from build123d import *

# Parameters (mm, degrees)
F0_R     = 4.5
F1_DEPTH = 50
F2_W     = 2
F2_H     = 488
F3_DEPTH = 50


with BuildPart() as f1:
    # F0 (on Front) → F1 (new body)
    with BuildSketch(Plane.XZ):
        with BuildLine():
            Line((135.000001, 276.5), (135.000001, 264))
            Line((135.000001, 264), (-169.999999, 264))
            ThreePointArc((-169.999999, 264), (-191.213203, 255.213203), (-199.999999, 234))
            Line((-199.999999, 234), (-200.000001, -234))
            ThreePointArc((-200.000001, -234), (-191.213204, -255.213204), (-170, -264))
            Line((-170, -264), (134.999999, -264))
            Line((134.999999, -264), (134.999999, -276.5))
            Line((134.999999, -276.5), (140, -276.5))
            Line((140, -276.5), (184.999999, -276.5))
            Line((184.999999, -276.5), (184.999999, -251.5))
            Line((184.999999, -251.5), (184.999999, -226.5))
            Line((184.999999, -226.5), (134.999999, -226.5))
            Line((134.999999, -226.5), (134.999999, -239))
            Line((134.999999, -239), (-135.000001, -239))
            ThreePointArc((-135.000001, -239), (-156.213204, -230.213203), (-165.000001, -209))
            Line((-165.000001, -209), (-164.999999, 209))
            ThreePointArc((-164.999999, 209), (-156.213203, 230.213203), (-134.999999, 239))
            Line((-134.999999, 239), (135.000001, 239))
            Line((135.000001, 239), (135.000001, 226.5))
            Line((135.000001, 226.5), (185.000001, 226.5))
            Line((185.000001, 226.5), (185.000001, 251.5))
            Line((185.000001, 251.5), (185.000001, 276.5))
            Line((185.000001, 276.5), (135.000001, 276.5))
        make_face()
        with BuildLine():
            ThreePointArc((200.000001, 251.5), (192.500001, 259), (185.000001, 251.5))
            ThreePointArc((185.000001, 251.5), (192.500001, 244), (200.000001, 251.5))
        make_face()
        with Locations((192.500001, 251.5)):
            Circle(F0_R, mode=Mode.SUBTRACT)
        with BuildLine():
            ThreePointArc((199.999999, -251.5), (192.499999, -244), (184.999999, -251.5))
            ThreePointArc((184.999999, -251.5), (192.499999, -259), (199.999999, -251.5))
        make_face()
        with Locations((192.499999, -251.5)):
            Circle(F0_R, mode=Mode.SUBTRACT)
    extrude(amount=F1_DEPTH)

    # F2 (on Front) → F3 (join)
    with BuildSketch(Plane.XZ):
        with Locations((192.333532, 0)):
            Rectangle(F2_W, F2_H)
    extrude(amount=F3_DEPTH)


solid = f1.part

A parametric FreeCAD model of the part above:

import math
import FreeCAD as App
import Part
import Sketcher
from FreeCAD import Vector
Q = App.Units.Quantity

doc = App.newDocument("Part")
body = doc.addObject("PartDesign::Body", "Body")
body.AllowCompound = True

sketch1 = body.newObject("Sketcher::SketchObject", "Sketch")
sketch1.AttachmentSupport = (doc.getObject("XZ_Plane"), [""])
sketch1.MapMode = "FlatFace"
sketch1.addGeometry(Part.LineSegment(Vector(135.000001, 276.5, 0), Vector(135.000001, 264, 0)), False)
sketch1.addGeometry(Part.LineSegment(Vector(135.000001, 264, 0), Vector(-169.999999, 264, 0)), False)
sketch1.addGeometry(Part.ArcOfCircle(Part.Circle(Vector(-169.999999, 234, 0), Vector(0, 0, 1), 30), math.radians(90), math.radians(180)), False)
sketch1.addGeometry(Part.LineSegment(Vector(-199.999999, 234, 0), Vector(-200.000001, -234, 0)), False)
sketch1.addGeometry(Part.ArcOfCircle(Part.Circle(Vector(-170.000001, -234, 0), Vector(0, 0, 1), 30), math.radians(180), math.radians(270.000002)), False)
sketch1.addGeometry(Part.LineSegment(Vector(-170, -264, 0), Vector(134.999999, -264, 0)), False)
sketch1.addGeometry(Part.LineSegment(Vector(134.999999, -264, 0), Vector(134.999999, -276.5, 0)), False)
sketch1.addGeometry(Part.LineSegment(Vector(134.999999, -276.5, 0), Vector(184.999999, -276.5, 0)), False)
sketch1.addGeometry(Part.LineSegment(Vector(184.999999, -276.5, 0), Vector(184.999999, -251.5, 0)), False)
sketch1.addGeometry(Part.LineSegment(Vector(184.999999, -251.5, 0), Vector(184.999999, -226.5, 0)), False)
sketch1.addGeometry(Part.LineSegment(Vector(184.999999, -226.5, 0), Vector(134.999999, -226.5, 0)), False)
sketch1.addGeometry(Part.LineSegment(Vector(134.999999, -226.5, 0), Vector(134.999999, -239, 0)), False)
sketch1.addGeometry(Part.LineSegment(Vector(134.999999, -239, 0), Vector(-135.000001, -239, 0)), False)
sketch1.addGeometry(Part.ArcOfCircle(Part.Circle(Vector(-135, -208.999999, 0), Vector(0, 0, 1), 30.000001), math.radians(-179.999997), math.radians(-90.000003)), False)
sketch1.addGeometry(Part.LineSegment(Vector(-165.000001, -209, 0), Vector(-164.999999, 209, 0)), False)
sketch1.addGeometry(Part.ArcOfCircle(Part.Circle(Vector(-134.999999, 209, 0), Vector(0, 0, 1), 30), math.radians(90), math.radians(180)), False)
sketch1.addGeometry(Part.LineSegment(Vector(-134.999999, 239, 0), Vector(135.000001, 239, 0)), False)
sketch1.addGeometry(Part.LineSegment(Vector(135.000001, 239, 0), Vector(135.000001, 226.5, 0)), False)
sketch1.addGeometry(Part.LineSegment(Vector(135.000001, 226.5, 0), Vector(185.000001, 226.5, 0)), False)
sketch1.addGeometry(Part.LineSegment(Vector(185.000001, 226.5, 0), Vector(185.000001, 251.5, 0)), False)
sketch1.addGeometry(Part.LineSegment(Vector(185.000001, 251.5, 0), Vector(185.000001, 276.5, 0)), False)
sketch1.addGeometry(Part.LineSegment(Vector(185.000001, 276.5, 0), Vector(135.000001, 276.5, 0)), False)
sketch1.addGeometry(Part.Circle(Vector(192.500001, 251.5, 0), Vector(0, 0, 1), 7.5), False)
sketch1.addGeometry(Part.Circle(Vector(192.500001, 251.5, 0), Vector(0, 0, 1), 4.5), False)
sketch1.addGeometry(Part.Circle(Vector(192.499999, -251.5, 0), Vector(0, 0, 1), 7.5), False)
sketch1.addGeometry(Part.Circle(Vector(192.499999, -251.5, 0), Vector(0, 0, 1), 4.5), False)
sketch1.addConstraint(Sketcher.Constraint("Coincident", 0, 2, 1, 1))
sketch1.addConstraint(Sketcher.Constraint("Tangent", 1, 2, 2, 1))
sketch1.addConstraint(Sketcher.Constraint("Tangent", 2, 2, 3, 1))
sketch1.addConstraint(Sketcher.Constraint("Tangent", 3, 2, 4, 1))
sketch1.addConstraint(Sketcher.Constraint("Tangent", 4, 2, 5, 1))
sketch1.addConstraint(Sketcher.Constraint("Coincident", 5, 2, 6, 1))
sketch1.addConstraint(Sketcher.Constraint("Coincident", 6, 2, 7, 1))
sketch1.addConstraint(Sketcher.Constraint("Coincident", 7, 2, 8, 1))
sketch1.addConstraint(Sketcher.Constraint("Coincident", 8, 2, 9, 1))
sketch1.addConstraint(Sketcher.Constraint("Coincident", 9, 2, 10, 1))
sketch1.addConstraint(Sketcher.Constraint("Coincident", 10, 2, 11, 1))
sketch1.addConstraint(Sketcher.Constraint("Coincident", 11, 2, 12, 1))
sketch1.addConstraint(Sketcher.Constraint("Tangent", 12, 2, 13, 2))
sketch1.addConstraint(Sketcher.Constraint("Tangent", 13, 1, 14, 1))
sketch1.addConstraint(Sketcher.Constraint("Tangent", 14, 2, 15, 2))
sketch1.addConstraint(Sketcher.Constraint("Tangent", 15, 1, 16, 1))
sketch1.addConstraint(Sketcher.Constraint("Coincident", 16, 2, 17, 1))
sketch1.addConstraint(Sketcher.Constraint("Coincident", 17, 2, 18, 1))
sketch1.addConstraint(Sketcher.Constraint("Coincident", 18, 2, 19, 1))
sketch1.addConstraint(Sketcher.Constraint("Coincident", 19, 2, 20, 1))
sketch1.addConstraint(Sketcher.Constraint("Coincident", 20, 2, 21, 1))
sketch1.addConstraint(Sketcher.Constraint("Coincident", 21, 2, 0, 1))
sketch1.addConstraint(Sketcher.Constraint("Vertical", 0))
sketch1.addConstraint(Sketcher.Constraint("Horizontal", 1))
sketch1.addConstraint(Sketcher.Constraint("Vertical", 3))
sketch1.addConstraint(Sketcher.Constraint("Horizontal", 5))
sketch1.addConstraint(Sketcher.Constraint("Vertical", 6))
sketch1.addConstraint(Sketcher.Constraint("Horizontal", 7))
sketch1.addConstraint(Sketcher.Constraint("Vertical", 8))
sketch1.addConstraint(Sketcher.Constraint("Vertical", 9))
sketch1.addConstraint(Sketcher.Constraint("Horizontal", 10))
sketch1.addConstraint(Sketcher.Constraint("Vertical", 11))
sketch1.addConstraint(Sketcher.Constraint("Horizontal", 12))
sketch1.addConstraint(Sketcher.Constraint("Vertical", 14))
sketch1.addConstraint(Sketcher.Constraint("Horizontal", 16))
sketch1.addConstraint(Sketcher.Constraint("Vertical", 17))
sketch1.addConstraint(Sketcher.Constraint("Horizontal", 18))
sketch1.addConstraint(Sketcher.Constraint("Vertical", 19))
sketch1.addConstraint(Sketcher.Constraint("Vertical", 20))
sketch1.addConstraint(Sketcher.Constraint("Horizontal", 21))
sketch1.addConstraint(Sketcher.Constraint("Coincident", 23, 3, 22, 3))
sketch1.addConstraint(Sketcher.Constraint("Coincident", 25, 3, 24, 3))
sketch1.addConstraint(Sketcher.Constraint("Equal", 2, 4))
sketch1.addConstraint(Sketcher.Constraint("Equal", 4, 13))
sketch1.addConstraint(Sketcher.Constraint("Equal", 13, 15))
sketch1.addConstraint(Sketcher.Constraint("Equal", 22, 24))
sketch1.addConstraint(Sketcher.Constraint("Equal", 23, 25))
sketch1.addConstraint(Sketcher.Constraint("Symmetric", 11, 2, 15, 1, -1, 1))
sketch1.addConstraint(Sketcher.Constraint("Symmetric", 22, 3, 24, 3, -1))
sketch1.addConstraint(Sketcher.Constraint("Symmetric", 0, 2, 5, 2, -1))
sketch1.addConstraint(Sketcher.Constraint("Symmetric", 10, 2, 17, 2, -1))
sketch1.addConstraint(Sketcher.Constraint("Symmetric", 8, 2, 19, 2, -1))
sketch1.addConstraint(Sketcher.Constraint("Horizontal", 25, 3, 8, 2))
sketch1.addConstraint(Sketcher.Constraint("Vertical", 6, 2, 10, 2))
sketch1.addConstraint(Sketcher.Constraint("Equal", 0, 6))
sketch1.addConstraint(Sketcher.Constraint("Equal", 8, 9))
sketch1.addConstraint(Sketcher.Constraint("Equal", 6, 11))
sketch1.addConstraint(Sketcher.Constraint("Diameter", 22, Q("15 mm")))
sketch1.addConstraint(Sketcher.Constraint("Diameter", 23, Q("9 mm")))
sketch1.addConstraint(Sketcher.Constraint("Radius", 2, Q("30 mm")))
sketch1.addConstraint(Sketcher.Constraint("DistanceX", 1, 2, 1, 1, Q("305 mm")))
sketch1.addConstraint(Sketcher.Constraint("DistanceX", 7, 1, 7, 2, Q("50 mm")))
sketch1.addConstraint(Sketcher.Constraint("DistanceX", 12, 2, 12, 1, Q("270 mm")))
sketch1.addConstraint(Sketcher.Constraint("DistanceY", 3, 2, 3, 1, Q("468 mm")))
sketch1.addConstraint(Sketcher.Constraint("DistanceY", 8, 1, 8, 2, Q("25 mm")))
sketch1.addConstraint(Sketcher.Constraint("DistanceY", 14, 1, 14, 2, Q("418 mm")))
sketch1.addConstraint(Sketcher.Constraint("DistanceX", -1, 1, 22, 3, Q("192.500001 mm")))
pad1 = body.newObject("PartDesign::Pad", "Pad")
pad1.Profile = sketch1
pad1.Length = 50

sketch2 = body.newObject("Sketcher::SketchObject", "Sketch001")
sketch2.AttachmentSupport = (doc.getObject("XZ_Plane"), [""])
sketch2.MapMode = "FlatFace"
sketch2.addGeometry(Part.LineSegment(Vector(191.333532, 244, 0), Vector(191.333532, -244, 0)), False)
sketch2.addGeometry(Part.LineSegment(Vector(191.333532, -244, 0), Vector(193.333532, -244, 0)), False)
sketch2.addGeometry(Part.LineSegment(Vector(193.333532, -244, 0), Vector(193.333532, 244, 0)), False)
sketch2.addGeometry(Part.LineSegment(Vector(193.333532, 244, 0), Vector(191.333532, 244, 0)), False)
sketch2.addConstraint(Sketcher.Constraint("Coincident", 0, 2, 1, 1))
sketch2.addConstraint(Sketcher.Constraint("Coincident", 1, 2, 2, 1))
sketch2.addConstraint(Sketcher.Constraint("Coincident", 2, 2, 3, 1))
sketch2.addConstraint(Sketcher.Constraint("Coincident", 3, 2, 0, 1))
sketch2.addConstraint(Sketcher.Constraint("Vertical", 0))
sketch2.addConstraint(Sketcher.Constraint("Horizontal", 1))
sketch2.addConstraint(Sketcher.Constraint("Vertical", 2))
sketch2.addConstraint(Sketcher.Constraint("Horizontal", 3))
sketch2.addConstraint(Sketcher.Constraint("DistanceX", 1, 1, 1, 2, Q("2 mm")))
sketch2.addConstraint(Sketcher.Constraint("DistanceY", 0, 2, 0, 1, Q("488 mm")))
sketch2.addConstraint(Sketcher.Constraint("DistanceY", 0, 2, -1, 1, Q("244 mm")))
sketch2.addConstraint(Sketcher.Constraint("DistanceX", -1, 1, 0, 2, Q("191.333532 mm")))
pad2 = body.newObject("PartDesign::Pad", "Pad001")
pad2.Profile = sketch2
pad2.Length = 50

doc.recompute()
